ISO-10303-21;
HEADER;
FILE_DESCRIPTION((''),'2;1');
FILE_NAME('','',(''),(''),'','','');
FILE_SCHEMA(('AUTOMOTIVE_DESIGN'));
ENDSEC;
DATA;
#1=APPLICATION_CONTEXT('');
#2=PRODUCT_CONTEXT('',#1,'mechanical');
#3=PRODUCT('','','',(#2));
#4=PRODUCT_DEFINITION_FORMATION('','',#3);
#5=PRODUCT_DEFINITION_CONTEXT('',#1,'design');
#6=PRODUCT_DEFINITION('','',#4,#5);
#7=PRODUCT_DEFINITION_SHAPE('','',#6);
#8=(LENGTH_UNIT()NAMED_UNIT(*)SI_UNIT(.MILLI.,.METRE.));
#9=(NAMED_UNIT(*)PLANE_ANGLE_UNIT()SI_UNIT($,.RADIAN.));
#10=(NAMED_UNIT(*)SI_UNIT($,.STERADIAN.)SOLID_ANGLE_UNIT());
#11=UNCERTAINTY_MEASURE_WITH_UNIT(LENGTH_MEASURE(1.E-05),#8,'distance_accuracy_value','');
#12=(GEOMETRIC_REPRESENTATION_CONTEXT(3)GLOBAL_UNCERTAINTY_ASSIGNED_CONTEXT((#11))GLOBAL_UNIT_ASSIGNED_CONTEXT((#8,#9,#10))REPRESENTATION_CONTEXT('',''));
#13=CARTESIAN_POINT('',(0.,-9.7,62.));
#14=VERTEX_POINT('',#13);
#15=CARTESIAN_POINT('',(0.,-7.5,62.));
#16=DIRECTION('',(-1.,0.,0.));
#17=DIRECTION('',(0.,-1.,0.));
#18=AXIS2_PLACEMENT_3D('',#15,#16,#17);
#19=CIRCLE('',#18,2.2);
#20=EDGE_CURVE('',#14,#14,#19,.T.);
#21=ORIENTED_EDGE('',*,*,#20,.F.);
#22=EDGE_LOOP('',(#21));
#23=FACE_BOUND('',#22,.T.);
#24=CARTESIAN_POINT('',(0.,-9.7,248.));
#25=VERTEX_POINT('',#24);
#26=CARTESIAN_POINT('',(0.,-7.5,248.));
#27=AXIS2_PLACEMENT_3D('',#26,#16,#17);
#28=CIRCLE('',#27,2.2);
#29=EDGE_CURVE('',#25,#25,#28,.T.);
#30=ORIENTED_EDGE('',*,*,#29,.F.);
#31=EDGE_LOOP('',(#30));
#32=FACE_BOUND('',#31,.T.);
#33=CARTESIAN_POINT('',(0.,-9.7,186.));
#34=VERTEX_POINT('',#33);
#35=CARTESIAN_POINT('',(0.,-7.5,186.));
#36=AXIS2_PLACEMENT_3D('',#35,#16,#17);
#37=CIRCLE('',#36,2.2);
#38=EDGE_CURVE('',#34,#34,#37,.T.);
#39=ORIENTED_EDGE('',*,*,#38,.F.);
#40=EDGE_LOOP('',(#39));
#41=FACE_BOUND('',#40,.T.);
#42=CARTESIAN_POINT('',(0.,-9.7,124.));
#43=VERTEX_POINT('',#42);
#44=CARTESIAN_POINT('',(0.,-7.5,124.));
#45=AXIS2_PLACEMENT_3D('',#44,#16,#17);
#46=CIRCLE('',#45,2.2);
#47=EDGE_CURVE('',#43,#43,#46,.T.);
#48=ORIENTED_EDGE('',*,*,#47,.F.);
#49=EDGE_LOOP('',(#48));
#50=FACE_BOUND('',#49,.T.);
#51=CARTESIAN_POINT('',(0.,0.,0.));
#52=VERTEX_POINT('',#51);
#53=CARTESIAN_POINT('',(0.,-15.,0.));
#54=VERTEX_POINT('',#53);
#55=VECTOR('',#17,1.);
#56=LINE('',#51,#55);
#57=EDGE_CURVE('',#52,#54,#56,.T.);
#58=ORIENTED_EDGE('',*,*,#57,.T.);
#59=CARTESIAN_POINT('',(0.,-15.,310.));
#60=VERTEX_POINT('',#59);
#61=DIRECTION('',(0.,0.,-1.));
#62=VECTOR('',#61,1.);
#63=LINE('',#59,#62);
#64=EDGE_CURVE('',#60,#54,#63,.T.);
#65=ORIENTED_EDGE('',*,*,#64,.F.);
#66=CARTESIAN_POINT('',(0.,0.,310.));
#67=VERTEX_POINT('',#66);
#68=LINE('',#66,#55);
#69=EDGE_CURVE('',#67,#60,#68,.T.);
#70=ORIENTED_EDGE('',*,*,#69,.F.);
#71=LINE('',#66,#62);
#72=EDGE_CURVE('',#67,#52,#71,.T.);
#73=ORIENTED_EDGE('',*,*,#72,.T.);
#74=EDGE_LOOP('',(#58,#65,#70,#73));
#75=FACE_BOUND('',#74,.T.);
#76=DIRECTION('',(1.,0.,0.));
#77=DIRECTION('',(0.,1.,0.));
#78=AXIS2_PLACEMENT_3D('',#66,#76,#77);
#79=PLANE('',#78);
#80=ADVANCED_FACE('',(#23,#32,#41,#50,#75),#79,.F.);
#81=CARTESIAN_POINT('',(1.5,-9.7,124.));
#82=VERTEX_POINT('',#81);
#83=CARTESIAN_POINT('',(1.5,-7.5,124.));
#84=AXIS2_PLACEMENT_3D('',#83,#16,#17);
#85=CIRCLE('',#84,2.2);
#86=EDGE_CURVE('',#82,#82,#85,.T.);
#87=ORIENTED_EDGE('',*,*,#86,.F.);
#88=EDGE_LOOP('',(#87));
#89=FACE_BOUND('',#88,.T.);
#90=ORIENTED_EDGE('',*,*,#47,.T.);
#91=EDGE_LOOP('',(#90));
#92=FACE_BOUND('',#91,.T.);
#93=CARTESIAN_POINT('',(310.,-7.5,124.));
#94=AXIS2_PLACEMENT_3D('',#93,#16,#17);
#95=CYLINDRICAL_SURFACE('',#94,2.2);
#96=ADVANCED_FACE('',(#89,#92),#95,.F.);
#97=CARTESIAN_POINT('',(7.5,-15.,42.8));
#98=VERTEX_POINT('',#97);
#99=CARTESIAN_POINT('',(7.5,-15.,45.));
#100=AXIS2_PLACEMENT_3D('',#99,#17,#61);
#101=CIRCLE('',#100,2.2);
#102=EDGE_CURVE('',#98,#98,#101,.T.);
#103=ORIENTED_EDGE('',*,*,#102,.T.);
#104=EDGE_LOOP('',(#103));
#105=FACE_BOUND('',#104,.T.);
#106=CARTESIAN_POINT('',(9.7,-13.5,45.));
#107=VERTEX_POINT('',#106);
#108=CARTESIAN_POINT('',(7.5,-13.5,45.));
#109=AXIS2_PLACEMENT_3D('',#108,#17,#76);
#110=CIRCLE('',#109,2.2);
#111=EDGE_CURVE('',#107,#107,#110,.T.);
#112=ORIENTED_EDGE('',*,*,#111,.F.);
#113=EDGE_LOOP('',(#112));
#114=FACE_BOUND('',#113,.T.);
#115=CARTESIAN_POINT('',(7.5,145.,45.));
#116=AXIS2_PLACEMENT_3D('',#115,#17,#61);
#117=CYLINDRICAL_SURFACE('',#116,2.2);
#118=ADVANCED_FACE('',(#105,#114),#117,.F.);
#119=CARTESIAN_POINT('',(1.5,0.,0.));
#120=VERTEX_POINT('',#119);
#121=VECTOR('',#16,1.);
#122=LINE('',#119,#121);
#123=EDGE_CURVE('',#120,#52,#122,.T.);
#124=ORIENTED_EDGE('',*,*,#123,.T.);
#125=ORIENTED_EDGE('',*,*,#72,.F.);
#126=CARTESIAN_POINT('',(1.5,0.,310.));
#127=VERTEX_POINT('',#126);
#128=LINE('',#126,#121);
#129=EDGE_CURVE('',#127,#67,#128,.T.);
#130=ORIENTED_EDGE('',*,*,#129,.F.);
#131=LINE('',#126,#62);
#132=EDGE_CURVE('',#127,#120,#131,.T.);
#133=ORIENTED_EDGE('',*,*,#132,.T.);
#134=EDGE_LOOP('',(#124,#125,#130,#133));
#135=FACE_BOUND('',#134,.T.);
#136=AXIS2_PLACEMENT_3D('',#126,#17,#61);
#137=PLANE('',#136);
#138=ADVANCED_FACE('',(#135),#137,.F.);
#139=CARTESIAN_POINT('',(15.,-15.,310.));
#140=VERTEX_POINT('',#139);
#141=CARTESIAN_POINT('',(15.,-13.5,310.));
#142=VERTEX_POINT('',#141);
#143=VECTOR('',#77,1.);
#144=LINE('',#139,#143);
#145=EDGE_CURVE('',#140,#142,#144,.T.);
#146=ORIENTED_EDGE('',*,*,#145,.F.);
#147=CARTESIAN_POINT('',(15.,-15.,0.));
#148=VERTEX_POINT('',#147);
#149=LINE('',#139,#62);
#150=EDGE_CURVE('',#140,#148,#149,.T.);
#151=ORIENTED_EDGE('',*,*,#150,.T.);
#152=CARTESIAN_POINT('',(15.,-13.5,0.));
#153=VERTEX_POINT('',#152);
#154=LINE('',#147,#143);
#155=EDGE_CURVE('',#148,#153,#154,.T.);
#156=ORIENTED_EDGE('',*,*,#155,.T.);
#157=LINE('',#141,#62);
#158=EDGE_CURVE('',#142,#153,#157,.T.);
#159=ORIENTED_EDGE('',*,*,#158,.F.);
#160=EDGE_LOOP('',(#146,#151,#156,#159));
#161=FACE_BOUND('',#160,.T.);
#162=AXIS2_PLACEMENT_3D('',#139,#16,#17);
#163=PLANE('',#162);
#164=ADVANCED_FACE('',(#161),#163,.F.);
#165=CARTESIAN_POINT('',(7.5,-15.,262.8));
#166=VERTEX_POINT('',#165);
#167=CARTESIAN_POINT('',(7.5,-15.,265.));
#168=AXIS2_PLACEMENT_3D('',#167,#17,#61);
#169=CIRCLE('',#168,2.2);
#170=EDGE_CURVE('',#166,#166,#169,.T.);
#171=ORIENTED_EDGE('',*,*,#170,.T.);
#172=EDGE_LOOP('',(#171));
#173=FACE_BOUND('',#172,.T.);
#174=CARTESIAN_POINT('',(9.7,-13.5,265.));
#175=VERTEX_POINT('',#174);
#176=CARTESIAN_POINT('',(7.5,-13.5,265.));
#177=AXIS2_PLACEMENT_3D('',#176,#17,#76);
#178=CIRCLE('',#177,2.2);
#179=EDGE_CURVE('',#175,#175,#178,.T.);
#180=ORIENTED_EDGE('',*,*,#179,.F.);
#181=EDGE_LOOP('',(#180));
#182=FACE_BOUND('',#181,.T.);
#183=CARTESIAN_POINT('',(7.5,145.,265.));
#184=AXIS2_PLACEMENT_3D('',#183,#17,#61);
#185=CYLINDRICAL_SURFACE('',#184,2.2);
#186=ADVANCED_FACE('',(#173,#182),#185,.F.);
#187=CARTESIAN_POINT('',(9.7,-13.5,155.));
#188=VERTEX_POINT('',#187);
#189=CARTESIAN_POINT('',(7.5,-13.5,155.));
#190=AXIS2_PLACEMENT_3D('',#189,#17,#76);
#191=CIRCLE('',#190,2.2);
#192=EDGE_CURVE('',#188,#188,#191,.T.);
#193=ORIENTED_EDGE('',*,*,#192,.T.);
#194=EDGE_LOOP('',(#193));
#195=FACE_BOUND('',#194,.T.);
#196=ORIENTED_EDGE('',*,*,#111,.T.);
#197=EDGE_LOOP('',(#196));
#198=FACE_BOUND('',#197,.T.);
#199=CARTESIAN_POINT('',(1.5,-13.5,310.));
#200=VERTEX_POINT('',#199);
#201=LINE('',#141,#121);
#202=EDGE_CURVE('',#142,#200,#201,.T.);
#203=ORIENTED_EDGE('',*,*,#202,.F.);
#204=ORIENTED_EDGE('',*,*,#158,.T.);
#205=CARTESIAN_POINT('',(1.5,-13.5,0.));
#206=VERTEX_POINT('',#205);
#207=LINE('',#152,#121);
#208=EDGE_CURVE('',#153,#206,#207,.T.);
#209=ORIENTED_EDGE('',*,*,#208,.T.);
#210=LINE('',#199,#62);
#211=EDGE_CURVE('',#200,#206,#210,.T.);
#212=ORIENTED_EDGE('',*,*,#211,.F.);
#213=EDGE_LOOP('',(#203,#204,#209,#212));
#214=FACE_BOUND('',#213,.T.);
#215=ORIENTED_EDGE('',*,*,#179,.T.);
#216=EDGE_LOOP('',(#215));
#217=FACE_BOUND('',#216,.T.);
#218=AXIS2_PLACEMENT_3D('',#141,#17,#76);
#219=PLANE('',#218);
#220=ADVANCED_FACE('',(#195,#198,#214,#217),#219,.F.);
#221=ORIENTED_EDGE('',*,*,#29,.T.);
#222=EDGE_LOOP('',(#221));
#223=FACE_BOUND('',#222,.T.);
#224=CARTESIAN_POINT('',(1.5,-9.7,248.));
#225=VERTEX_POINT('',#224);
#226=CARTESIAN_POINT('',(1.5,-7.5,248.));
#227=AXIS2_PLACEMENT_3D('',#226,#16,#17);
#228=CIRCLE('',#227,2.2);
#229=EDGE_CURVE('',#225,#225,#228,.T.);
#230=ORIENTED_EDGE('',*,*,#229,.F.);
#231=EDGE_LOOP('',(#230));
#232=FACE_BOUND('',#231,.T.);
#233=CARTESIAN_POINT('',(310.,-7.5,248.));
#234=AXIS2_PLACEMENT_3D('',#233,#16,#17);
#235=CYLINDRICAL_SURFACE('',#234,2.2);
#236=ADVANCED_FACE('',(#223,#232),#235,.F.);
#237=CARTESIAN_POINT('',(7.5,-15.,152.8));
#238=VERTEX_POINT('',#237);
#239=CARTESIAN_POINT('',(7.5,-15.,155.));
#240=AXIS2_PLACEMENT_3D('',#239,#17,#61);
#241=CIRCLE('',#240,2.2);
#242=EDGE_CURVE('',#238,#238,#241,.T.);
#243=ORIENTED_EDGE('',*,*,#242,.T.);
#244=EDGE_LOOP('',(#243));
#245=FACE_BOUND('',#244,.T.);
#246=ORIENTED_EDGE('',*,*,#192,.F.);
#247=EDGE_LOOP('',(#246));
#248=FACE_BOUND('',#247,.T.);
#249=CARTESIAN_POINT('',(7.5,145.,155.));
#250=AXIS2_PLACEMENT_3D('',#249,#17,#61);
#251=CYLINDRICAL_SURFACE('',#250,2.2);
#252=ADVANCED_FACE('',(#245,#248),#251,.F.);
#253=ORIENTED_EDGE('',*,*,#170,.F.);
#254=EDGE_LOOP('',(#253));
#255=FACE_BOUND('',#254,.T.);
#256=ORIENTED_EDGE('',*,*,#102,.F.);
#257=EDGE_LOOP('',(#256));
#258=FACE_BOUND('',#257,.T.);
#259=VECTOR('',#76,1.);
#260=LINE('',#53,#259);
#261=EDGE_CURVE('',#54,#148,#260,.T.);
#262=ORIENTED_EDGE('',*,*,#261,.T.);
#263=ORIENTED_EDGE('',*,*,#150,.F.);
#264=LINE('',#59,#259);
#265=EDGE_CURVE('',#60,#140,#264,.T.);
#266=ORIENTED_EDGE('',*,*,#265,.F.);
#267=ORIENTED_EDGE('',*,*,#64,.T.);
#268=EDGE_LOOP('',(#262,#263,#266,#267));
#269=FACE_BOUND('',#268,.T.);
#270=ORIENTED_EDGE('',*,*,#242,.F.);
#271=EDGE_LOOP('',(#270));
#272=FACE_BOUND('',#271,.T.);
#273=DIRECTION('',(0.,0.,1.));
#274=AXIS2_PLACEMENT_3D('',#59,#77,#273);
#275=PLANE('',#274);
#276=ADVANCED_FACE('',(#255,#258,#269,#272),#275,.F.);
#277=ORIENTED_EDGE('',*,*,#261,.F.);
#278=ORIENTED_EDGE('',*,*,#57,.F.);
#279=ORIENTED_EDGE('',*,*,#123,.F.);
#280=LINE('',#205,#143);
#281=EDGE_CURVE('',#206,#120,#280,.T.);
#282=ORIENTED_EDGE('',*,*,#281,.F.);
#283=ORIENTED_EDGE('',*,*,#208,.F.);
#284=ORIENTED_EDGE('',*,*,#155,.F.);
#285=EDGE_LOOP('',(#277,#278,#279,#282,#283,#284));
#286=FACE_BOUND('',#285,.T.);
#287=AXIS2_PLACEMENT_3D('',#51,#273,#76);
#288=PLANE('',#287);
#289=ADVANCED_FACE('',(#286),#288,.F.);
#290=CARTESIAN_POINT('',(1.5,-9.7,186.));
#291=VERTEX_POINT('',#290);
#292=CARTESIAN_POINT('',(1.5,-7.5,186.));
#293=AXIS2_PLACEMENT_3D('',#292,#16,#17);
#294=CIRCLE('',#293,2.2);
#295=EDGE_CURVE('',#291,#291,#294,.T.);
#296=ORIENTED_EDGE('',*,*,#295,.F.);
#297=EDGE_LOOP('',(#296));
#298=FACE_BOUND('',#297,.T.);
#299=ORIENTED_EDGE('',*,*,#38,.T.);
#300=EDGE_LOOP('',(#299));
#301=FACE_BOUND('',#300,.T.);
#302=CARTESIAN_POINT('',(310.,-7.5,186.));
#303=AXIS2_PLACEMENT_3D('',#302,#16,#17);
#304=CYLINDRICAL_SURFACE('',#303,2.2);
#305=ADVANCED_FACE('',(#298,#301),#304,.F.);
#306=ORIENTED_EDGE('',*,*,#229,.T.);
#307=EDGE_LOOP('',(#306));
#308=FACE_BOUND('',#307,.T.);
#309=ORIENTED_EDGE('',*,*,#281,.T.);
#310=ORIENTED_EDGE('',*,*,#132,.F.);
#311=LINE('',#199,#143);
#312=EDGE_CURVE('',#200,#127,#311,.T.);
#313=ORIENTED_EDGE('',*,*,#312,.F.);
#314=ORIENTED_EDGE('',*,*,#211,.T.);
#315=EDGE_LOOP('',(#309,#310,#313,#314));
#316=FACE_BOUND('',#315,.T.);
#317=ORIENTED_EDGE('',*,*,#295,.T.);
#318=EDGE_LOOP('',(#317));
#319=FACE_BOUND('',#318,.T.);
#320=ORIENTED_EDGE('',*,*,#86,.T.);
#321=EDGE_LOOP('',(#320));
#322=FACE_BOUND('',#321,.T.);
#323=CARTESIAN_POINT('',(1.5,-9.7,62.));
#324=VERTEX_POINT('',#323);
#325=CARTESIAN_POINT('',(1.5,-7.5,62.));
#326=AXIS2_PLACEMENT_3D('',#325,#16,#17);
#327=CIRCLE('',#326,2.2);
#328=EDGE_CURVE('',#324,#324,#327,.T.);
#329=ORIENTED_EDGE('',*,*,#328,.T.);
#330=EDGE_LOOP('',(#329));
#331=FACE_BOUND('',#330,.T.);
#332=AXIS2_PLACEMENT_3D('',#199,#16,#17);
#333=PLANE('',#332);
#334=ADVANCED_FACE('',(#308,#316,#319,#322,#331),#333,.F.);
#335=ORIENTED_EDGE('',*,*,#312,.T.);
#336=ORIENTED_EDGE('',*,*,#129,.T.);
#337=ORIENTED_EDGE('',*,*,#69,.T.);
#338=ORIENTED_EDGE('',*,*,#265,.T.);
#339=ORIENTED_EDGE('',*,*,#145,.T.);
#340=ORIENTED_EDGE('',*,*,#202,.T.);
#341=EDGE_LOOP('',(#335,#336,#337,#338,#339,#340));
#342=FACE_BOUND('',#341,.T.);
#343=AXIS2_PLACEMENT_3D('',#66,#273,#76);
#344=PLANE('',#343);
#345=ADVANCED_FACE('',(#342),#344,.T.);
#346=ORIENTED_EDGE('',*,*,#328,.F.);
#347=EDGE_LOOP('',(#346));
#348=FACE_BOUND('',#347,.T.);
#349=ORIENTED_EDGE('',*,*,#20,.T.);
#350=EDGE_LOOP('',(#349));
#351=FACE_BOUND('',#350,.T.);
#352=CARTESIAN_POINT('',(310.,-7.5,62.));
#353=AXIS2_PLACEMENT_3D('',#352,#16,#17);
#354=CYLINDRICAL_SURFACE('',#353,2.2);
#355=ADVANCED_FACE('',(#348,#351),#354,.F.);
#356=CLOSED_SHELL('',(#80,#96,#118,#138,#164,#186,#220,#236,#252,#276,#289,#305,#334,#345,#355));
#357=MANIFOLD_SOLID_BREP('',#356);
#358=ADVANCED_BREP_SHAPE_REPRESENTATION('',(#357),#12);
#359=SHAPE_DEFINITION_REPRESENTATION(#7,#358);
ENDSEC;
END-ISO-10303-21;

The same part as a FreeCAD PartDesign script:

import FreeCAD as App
import Part
import Sketcher

V = App.Vector
Q = App.Units.Quantity


def add_polygon(sketch, points):
    """Adds a closed chain of lines whose ends are joined by coincident constraints."""
    first, n = sketch.GeometryCount, len(points)
    for a, b in zip(points, points[1:] + points[:1]):
        sketch.addGeometry(Part.LineSegment(App.Vector(*a, 0), App.Vector(*b, 0)), False)
    for i in range(n):
        sketch.addConstraint(Sketcher.Constraint("Coincident", first + i, 2, first + (i + 1) % n, 1))

doc = App.newDocument("Part")
body = doc.addObject("PartDesign::Body", "Body")

sketch1 = doc.addObject("Sketcher::SketchObject", "Sketch")
body.addObject(sketch1)
sketch1.AttachmentSupport = (doc.XY_Plane, [""])
sketch1.MapMode = "FlatFace"
add_polygon(sketch1, [(0, 0), (0, -15), (15, -15), (15, -13.5), (1.5, -13.5), (1.5, 0)])
sketch1.addConstraint([
    Sketcher.Constraint("Vertical", 0),
    Sketcher.Constraint("Horizontal", 1),
    Sketcher.Constraint("Vertical", 2),
    Sketcher.Constraint("Horizontal", 3),
    Sketcher.Constraint("Vertical", 4),
    Sketcher.Constraint("Horizontal", 5),
    Sketcher.Constraint("Coincident", 5, 2, -1, 1),
    Sketcher.Constraint("Equal", 1, 0),
    Sketcher.Constraint("Equal", 5, 2),
    Sketcher.Constraint("DistanceX", 1, 1, 1, 2, Q("15 mm")),
    Sketcher.Constraint("DistanceX", 3, 2, 3, 1, Q("13.5 mm")),
])
pad1 = doc.addObject("PartDesign::Pad", "Pad")
body.addObject(pad1)
pad1.Profile = sketch1
pad1.Length = 310

sketch2 = doc.addObject("Sketcher::SketchObject", "Sketch001")
body.addObject(sketch2)
sketch2.AttachmentSupport = (doc.YZ_Plane, [""])
sketch2.MapMode = "FlatFace"
sketch2.addGeometry([
    Part.Circle(V(-7.5, 248, 0), V(0, 0, 1), 2.2),
    Part.Circle(V(-7.5, 186, 0), V(0, 0, 1), 2.2),
    Part.Circle(V(-7.5, 124, 0), V(0, 0, 1), 2.2),
    Part.Circle(V(-7.5, 62, 0), V(0, 0, 1), 2.2),
], False)
sketch2.addConstraint([
    Sketcher.Constraint("Equal", 0, 1),
    Sketcher.Constraint("Equal", 1, 2),
    Sketcher.Constraint("Equal", 2, 3),
    Sketcher.Constraint("Vertical", 0, 3, 1, 3),
    Sketcher.Constraint("Vertical", 1, 3, 2, 3),
    Sketcher.Constraint("Vertical", 2, 3, 3, 3),
    Sketcher.Constraint("Diameter", 0, Q("4.4 mm")),
    Sketcher.Constraint("DistanceY", -1, 1, 0, 3, Q("248 mm")),
    Sketcher.Constraint("DistanceY", -1, 1, 1, 3, Q("186 mm")),
    Sketcher.Constraint("DistanceY", -1, 1, 2, 3, Q("124 mm")),
    Sketcher.Constraint("DistanceY", -1, 1, 3, 3, Q("62 mm")),
    Sketcher.Constraint("DistanceX", 0, 3, -1, 1, Q("7.5 mm")),
])
pocket1 = doc.addObject("PartDesign::Pocket", "Pocket")
body.addObject(pocket1)
pocket1.Profile = sketch2
pocket1.Length = 310
pocket1.Reversed = True

sketch3 = doc.addObject("Sketcher::SketchObject", "Sketch002")
body.addObject(sketch3)
sketch3.AttachmentSupport = (doc.XZ_Plane, [""])
sketch3.MapMode = "FlatFace"
sketch3.AttachmentOffset = App.Placement(V(0, 0, 15), App.Rotation())
sketch3.addGeometry([
    Part.Circle(V(7.5, 265, 0), V(0, 0, 1), 2.2),
    Part.Circle(V(7.5, 155, 0), V(0, 0, 1), 2.2),
    Part.Circle(V(7.5, 45, 0), V(0, 0, 1), 2.2),
], False)
sketch3.addConstraint([
    Sketcher.Constraint("Equal", 0, 1),
    Sketcher.Constraint("Equal", 1, 2),
    Sketcher.Constraint("Vertical", 0, 3, 1, 3),
    Sketcher.Constraint("Vertical", 1, 3, 2, 3),
    Sketcher.Constraint("Diameter", 0, Q("4.4 mm")),
    Sketcher.Constraint("DistanceY", -1, 1, 0, 3, Q("265 mm")),
    Sketcher.Constraint("DistanceY", -1, 1, 1, 3, Q("155 mm")),
    Sketcher.Constraint("DistanceY", -1, 1, 2, 3, Q("45 mm")),
    Sketcher.Constraint("DistanceX", -1, 1, 0, 3, Q("7.5 mm")),
])
pocket2 = doc.addObject("PartDesign::Pocket", "Pocket001")
body.addObject(pocket2)
pocket2.Profile = sketch3
pocket2.Length = 160

doc.recompute()
